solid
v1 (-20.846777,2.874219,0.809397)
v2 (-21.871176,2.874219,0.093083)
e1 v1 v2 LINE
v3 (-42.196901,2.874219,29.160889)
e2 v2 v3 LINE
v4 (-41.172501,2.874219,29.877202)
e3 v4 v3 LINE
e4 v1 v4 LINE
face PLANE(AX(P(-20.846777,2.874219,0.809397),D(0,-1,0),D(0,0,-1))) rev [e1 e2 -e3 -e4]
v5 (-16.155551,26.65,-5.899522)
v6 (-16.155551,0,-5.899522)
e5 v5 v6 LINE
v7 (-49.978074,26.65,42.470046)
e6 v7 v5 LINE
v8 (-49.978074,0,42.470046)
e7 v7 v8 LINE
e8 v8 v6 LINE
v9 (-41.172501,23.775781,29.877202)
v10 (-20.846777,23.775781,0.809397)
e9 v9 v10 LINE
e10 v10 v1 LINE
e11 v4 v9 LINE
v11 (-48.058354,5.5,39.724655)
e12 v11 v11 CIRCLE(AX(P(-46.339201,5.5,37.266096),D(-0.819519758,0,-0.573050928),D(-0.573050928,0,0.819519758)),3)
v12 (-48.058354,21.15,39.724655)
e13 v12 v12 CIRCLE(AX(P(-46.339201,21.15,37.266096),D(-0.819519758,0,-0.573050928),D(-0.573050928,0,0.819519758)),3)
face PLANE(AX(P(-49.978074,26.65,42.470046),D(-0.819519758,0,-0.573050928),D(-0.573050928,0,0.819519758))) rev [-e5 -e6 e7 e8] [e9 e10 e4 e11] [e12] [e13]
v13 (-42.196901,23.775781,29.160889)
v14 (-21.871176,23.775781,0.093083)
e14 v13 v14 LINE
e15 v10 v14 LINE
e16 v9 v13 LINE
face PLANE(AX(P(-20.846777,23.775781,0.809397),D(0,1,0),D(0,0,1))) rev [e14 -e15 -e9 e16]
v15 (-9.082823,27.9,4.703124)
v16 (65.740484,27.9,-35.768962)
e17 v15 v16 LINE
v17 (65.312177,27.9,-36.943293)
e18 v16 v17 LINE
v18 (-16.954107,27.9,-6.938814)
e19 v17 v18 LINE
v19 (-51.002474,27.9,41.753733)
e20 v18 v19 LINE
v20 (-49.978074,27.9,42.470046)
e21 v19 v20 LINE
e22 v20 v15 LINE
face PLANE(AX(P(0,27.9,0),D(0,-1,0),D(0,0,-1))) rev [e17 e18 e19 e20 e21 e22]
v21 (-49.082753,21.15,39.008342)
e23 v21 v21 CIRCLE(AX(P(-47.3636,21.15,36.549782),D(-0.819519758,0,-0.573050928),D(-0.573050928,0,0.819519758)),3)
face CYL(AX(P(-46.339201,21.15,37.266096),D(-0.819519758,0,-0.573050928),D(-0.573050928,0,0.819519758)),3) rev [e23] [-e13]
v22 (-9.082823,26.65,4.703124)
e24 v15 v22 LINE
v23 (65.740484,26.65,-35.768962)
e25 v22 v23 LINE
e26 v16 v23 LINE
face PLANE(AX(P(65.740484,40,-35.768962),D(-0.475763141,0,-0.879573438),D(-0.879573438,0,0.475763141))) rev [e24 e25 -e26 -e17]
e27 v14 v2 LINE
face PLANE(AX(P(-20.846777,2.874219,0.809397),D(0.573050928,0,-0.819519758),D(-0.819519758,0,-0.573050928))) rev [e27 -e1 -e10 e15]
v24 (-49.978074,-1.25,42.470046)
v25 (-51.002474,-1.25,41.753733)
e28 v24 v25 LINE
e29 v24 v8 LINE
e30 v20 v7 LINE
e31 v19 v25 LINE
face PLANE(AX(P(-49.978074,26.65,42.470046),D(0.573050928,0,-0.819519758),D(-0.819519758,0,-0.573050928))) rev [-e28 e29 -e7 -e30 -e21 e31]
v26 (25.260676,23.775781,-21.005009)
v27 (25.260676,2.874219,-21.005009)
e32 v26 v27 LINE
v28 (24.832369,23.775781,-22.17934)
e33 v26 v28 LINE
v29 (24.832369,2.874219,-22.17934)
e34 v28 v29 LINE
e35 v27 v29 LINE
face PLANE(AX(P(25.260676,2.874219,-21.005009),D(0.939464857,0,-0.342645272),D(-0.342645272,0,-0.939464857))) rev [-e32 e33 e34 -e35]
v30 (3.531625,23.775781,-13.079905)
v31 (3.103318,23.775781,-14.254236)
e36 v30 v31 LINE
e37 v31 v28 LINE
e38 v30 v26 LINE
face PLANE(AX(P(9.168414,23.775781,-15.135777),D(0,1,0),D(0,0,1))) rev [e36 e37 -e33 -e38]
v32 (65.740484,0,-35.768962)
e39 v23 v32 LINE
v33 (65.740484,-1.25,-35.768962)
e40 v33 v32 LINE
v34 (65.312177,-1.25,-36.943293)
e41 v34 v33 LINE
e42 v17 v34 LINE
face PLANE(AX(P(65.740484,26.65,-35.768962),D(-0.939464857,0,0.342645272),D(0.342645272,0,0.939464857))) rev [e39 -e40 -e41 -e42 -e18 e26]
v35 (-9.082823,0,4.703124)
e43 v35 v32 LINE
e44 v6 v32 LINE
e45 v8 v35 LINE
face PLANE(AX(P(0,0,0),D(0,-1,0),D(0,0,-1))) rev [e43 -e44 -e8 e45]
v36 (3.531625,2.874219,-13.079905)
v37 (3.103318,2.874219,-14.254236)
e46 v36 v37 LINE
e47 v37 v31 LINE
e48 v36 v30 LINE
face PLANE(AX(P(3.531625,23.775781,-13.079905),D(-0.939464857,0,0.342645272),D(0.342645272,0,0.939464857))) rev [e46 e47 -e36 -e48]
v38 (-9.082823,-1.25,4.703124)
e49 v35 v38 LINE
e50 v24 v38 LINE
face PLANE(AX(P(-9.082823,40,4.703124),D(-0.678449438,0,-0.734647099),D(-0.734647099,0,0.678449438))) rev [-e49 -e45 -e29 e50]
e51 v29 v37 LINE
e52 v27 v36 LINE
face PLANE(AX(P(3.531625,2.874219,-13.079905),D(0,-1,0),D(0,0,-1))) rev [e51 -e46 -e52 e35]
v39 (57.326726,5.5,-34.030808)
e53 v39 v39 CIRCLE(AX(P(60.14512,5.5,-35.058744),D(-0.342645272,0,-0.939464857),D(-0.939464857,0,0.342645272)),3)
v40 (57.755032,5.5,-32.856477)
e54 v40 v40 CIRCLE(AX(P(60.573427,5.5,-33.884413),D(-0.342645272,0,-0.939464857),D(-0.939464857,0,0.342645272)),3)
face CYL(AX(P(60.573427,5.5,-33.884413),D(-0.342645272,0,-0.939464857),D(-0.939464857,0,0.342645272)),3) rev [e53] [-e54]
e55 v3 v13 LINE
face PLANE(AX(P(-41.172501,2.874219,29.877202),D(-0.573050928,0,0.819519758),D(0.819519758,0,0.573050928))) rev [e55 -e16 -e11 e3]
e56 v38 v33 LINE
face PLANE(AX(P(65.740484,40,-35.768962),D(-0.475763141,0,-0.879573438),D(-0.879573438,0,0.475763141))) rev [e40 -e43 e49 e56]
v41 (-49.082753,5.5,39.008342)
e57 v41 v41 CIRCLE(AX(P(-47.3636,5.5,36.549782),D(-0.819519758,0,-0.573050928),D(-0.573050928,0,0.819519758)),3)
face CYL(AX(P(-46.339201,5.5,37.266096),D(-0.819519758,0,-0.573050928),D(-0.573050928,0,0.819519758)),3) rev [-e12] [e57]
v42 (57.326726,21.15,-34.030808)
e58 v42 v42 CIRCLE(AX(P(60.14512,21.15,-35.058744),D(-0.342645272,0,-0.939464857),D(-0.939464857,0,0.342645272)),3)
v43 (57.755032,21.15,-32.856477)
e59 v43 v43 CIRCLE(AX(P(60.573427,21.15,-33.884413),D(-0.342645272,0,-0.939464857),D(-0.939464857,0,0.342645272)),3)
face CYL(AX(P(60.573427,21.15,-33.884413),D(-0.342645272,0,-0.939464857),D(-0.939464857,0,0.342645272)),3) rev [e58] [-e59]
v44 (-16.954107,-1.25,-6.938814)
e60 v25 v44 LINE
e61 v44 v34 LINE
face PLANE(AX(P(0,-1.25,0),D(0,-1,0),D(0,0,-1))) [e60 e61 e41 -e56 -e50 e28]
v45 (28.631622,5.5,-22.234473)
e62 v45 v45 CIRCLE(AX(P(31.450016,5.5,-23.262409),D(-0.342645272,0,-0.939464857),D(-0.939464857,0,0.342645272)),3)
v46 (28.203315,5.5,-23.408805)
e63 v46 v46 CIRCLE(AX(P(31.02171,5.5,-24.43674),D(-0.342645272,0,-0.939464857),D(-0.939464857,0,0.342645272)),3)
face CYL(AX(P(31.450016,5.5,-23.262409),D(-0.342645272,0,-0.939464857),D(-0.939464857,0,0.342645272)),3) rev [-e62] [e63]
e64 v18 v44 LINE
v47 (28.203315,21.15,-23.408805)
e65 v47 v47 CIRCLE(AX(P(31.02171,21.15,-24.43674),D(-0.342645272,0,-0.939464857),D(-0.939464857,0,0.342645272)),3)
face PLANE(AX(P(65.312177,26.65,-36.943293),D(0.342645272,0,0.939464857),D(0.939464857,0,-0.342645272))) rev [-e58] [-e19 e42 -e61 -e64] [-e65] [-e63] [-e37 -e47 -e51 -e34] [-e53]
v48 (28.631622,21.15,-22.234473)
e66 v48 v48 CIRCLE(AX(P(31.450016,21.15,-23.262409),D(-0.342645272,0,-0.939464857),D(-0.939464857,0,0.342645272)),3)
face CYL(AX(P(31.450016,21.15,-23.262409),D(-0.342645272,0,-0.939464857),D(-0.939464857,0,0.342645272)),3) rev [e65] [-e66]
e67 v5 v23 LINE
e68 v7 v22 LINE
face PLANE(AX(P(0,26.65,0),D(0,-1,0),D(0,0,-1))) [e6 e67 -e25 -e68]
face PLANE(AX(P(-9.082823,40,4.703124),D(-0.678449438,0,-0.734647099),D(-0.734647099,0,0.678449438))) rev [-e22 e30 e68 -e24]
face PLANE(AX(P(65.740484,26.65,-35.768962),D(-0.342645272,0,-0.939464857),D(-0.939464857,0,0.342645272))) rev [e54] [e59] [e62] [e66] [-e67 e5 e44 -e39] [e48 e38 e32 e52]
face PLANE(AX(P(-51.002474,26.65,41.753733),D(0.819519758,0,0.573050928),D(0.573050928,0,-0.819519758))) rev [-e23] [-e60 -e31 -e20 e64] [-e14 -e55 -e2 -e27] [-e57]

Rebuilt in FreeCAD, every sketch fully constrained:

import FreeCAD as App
import Part
import Sketcher

V = App.Vector


def add_polygon(sketch, points):
    """Adds a closed chain of lines whose ends are joined by coincident constraints."""
    first, n = sketch.GeometryCount, len(points)
    for a, b in zip(points, points[1:] + points[:1]):
        sketch.addGeometry(Part.LineSegment(App.Vector(*a, 0), App.Vector(*b, 0)), False)
    for i in range(n):
        sketch.addConstraint(Sketcher.Constraint("Coincident", first + i, 2, first + (i + 1) % n, 1))

doc = App.newDocument("Part")
body = doc.addObject("PartDesign::Body", "Body")

sketch1 = doc.addObject("Sketcher::SketchObject", "Sketch")
body.addObject(sketch1)
sketch1.AttachmentSupport = (doc.XZ_Plane, [""])
sketch1.MapMode = "FlatFace"
add_polygon(sketch1, [(-16.155551, -5.899522), (65.740484, -35.768962), (65.312177, -36.943293), (-16.954107, -6.938814), (-51.002474, 41.753733), (-49.978074, 42.470046)])
sketch1.addConstraint([
    Sketcher.Constraint("Distance", 1, 1.25),
    Sketcher.Constraint("Distance", 4, 1.25),
    Sketcher.Constraint("DistanceX", 3, 2, 4, 2, 1.0244),
    Sketcher.Constraint("Distance", 0, 87.173069),
    Sketcher.Constraint("DistanceY", 0, 2, -1, 1, 35.768962),
    Sketcher.Constraint("DistanceX", 5, 2, -1, 1, 16.155551),
    Sketcher.Constraint("DistanceY", 5, 2, -1, 1, 5.899522),
    Sketcher.Constraint("DistanceY", 1, 2, 0, 2, 1.174331),
    Sketcher.Constraint("DistanceY", 1, 2, 2, 2, 30.004479),
    Sketcher.Constraint("DistanceX", 2, 2, 0, 2, 82.694591),
    Sketcher.Constraint("DistanceX", 3, 2, 1, 2, 116.314651),
    Sketcher.Constraint("DistanceY", 2, 2, 4, 2, 49.40886),
])
pad1 = doc.addObject("PartDesign::Pad", "Pad")
body.addObject(pad1)
pad1.Profile = sketch1
pad1.Length = 26.65
pad1.Reversed = True

sketch2 = doc.addObject("Sketcher::SketchObject", "Sketch001")
body.addObject(sketch2)
sketch2.AttachmentSupport = (doc.XZ_Plane, [""])
sketch2.MapMode = "FlatFace"
sketch2.AttachmentOffset = App.Placement(V(0, 0, -26.65), App.Rotation())
add_polygon(sketch2, [(-51.002474, 41.753733), (-49.978074, 42.470046), (-7.87747, 6.485889), (65.740484, -35.768962), (65.312177, -36.943293), (-16.954107, -6.938814)])
sketch2.addConstraint([
    Sketcher.Constraint("Perpendicular", 3, 4),
    Sketcher.Constraint("Perpendicular", 0, 5),
    Sketcher.Constraint("Equal", 0, 3),
    Sketcher.Constraint("Distance", 0, 1.25),
    Sketcher.Constraint("DistanceX", 5, 2, 0, 2, 1.0244),
    Sketcher.Constraint("DistanceX", 1, 2, -1, 1, 7.87747),
    Sketcher.Constraint("DistanceY", -1, 1, 1, 2, 6.485889),
    Sketcher.Constraint("DistanceY", 2, 2, -1, 1, 35.768962),
    Sketcher.Constraint("DistanceY", 2, 2, 0, 2, 78.239008),
    Sketcher.Constraint("DistanceX", 0, 2, 3, 2, 115.290251),
    Sketcher.Constraint("DistanceY", 4, 2, 0, 2, 49.40886),
    Sketcher.Constraint("Distance", 1, 55.383395),
])
pad2 = doc.addObject("PartDesign::Pad", "Pad001")
body.addObject(pad2)
pad2.Profile = sketch2
pad2.Length = 1.25
pad2.Reversed = True

sketch3 = doc.addObject("Sketcher::SketchObject", "Sketch002")
body.addObject(sketch3)
sketch3.AttachmentSupport = (doc.XZ_Plane, [""])
sketch3.MapMode = "FlatFace"
add_polygon(sketch3, [(65.312177, -36.943293), (65.740484, -35.768962), (-7.87747, 6.485889), (-49.978074, 42.470046), (-51.002474, 41.753733), (-16.954107, -6.938814)])
sketch3.addConstraint([
    Sketcher.Constraint("Distance", 0, 1.25),
    Sketcher.Constraint("Distance", 3, 1.25),
    Sketcher.Constraint("DistanceX", 3, 2, 2, 2, 1.0244),
    Sketcher.Constraint("DistanceY", 0, 2, -1, 1, 35.768962),
    Sketcher.Constraint("DistanceX", 1, 2, -1, 1, 7.87747),
    Sketcher.Constraint("DistanceY", -1, 1, 1, 2, 6.485889),
    Sketcher.Constraint("DistanceY", 0, 2, 2, 2, 78.239008),
    Sketcher.Constraint("DistanceY", 4, 2, 2, 2, 49.40886),
    Sketcher.Constraint("DistanceX", 4, 2, 0, 2, 82.694591),
    Sketcher.Constraint("DistanceY", 5, 2, 0, 2, 1.174331),
    Sketcher.Constraint("DistanceX", 2, 2, 5, 2, 115.290251),
    Sketcher.Constraint("Distance", 1, 84.882716),
])
pad3 = doc.addObject("PartDesign::Pad", "Pad002")
body.addObject(pad3)
pad3.Profile = sketch3
pad3.Length = 1.25

sketch4 = doc.addObject("Sketcher::SketchObject", "Sketch003")
body.addObject(sketch4)
sketch4.Placement = App.Placement(V(-4.224137, 0, -11.581738), App.Rotation(V(-0.939464857, 0, 0.342645272), V(0, 1, 0), V(-0.342645272, 0, -0.939464857), "ZXY"))
sketch4.addGeometry([
    Part.Circle(V(-68.5, 21.1, 0), V(0, 0, 1), 3),
    Part.Circle(V(-37.5, 21.1, 0), V(0, 0, 1), 3),
    Part.Circle(V(-37.5, 5.5, 0), V(0, 0, 1), 3),
    Part.Circle(V(-68.5, 5.5, 0), V(0, 0, 1), 3),
], False)
sketch4.addConstraint([
    Sketcher.Constraint("Equal", 0, 1),
    Sketcher.Constraint("Equal", 1, 2),
    Sketcher.Constraint("Equal", 2, 3),
    Sketcher.Constraint("Horizontal", 0, 3, 1, 3),
    Sketcher.Constraint("Horizontal", 2, 3, 3, 3),
    Sketcher.Constraint("Vertical", 1, 3, 2, 3),
    Sketcher.Constraint("Vertical", 0, 3, 3, 3),
    Sketcher.Constraint("Diameter", 0, 6.0),
    Sketcher.Constraint("DistanceX", 0, 3, 1, 3, 31.0),
    Sketcher.Constraint("DistanceY", -1, 1, 2, 3, 5.5),
    Sketcher.Constraint("DistanceY", -1, 1, 0, 3, 21.15),
    Sketcher.Constraint("DistanceX", 0, 3, -1, 1, 68.51694),
])
pocket1 = doc.addObject("PartDesign::Pocket", "Pocket")
body.addObject(pocket1)
pocket1.Profile = sketch4
pocket1.Length = 1.25

sketch5 = doc.addObject("Sketcher::SketchObject", "Sketch004")
body.addObject(sketch5)
sketch5.Placement = App.Placement(V(-14.645244, 0, -10.240718), App.Rotation(V(-0.573050928, 0, 0.819519758), V(0, 1, 0), V(-0.819519758, 0, -0.573050928), "ZXY"))
sketch5.addGeometry([
    Part.Circle(V(57.1, 21.1, 0), V(0, 0, 1), 3),
    Part.Circle(V(57.1, 5.5, 0), V(0, 0, 1), 3),
], False)
sketch5.addConstraint([
    Sketcher.Constraint("Equal", 0, 1),
    Sketcher.Constraint("Vertical", 0, 3, 1, 3),
    Sketcher.Constraint("Diameter", 0, 6.0),
    Sketcher.Constraint("DistanceY", -1, 1, 1, 3, 5.5),
    Sketcher.Constraint("DistanceY", -1, 1, 0, 3, 21.15),
    Sketcher.Constraint("DistanceX", -1, 1, 0, 3, 57.095024),
])
pocket2 = doc.addObject("PartDesign::Pocket", "Pocket001")
body.addObject(pocket2)
pocket2.Profile = sketch5
pocket2.Length = 1.25

sketch6 = doc.addObject("Sketcher::SketchObject", "Sketch005")
body.addObject(sketch6)
sketch6.Placement = App.Placement(V(-14.645244, 0, -10.240718), App.Rotation(V(-0.573050928, 0, 0.819519758), V(0, 1, 0), V(-0.819519758, 0, -0.573050928), "ZXY"))
add_polygon(sketch6, [(13, 24), (13, 3), (48, 3), (48, 24)])
sketch6.addConstraint([
    Sketcher.Constraint("Vertical", 0),
    Sketcher.Constraint("Horizontal", 1),
    Sketcher.Constraint("Vertical", 2),
    Sketcher.Constraint("Horizontal", 3),
    Sketcher.Constraint("DistanceY", 0, 2, 0, 1, 20.901561),
    Sketcher.Constraint("DistanceX", 1, 1, 1, 2, 35.469316),
    Sketcher.Constraint("DistanceX", -1, 1, 0, 2, 12.609582),
    Sketcher.Constraint("DistanceY", -1, 1, 0, 2, 2.874219),
])
pocket3 = doc.addObject("PartDesign::Pocket", "Pocket002")
body.addObject(pocket3)
pocket3.Profile = sketch6
pocket3.Length = 1.25

sketch7 = doc.addObject("Sketcher::SketchObject", "Sketch006")
body.addObject(sketch7)
sketch7.Placement = App.Placement(V(-4.224137, 0, -11.581738), App.Rotation(V(-0.939464857, 0, 0.342645272), V(0, 1, 0), V(-0.342645272, 0, -0.939464857), "ZXY"))
add_polygon(sketch7, [(-8, 24), (-31, 24), (-31, 3), (-8, 3)])
sketch7.addConstraint([
    Sketcher.Constraint("Horizontal", 0),
    Sketcher.Constraint("Vertical", 1),
    Sketcher.Constraint("Horizontal", 2),
    Sketcher.Constraint("Vertical", 3),
    Sketcher.Constraint("DistanceX", 0, 2, 0, 1, 23.129179),
    Sketcher.Constraint("DistanceY", 1, 2, 1, 1, 20.901561),
    Sketcher.Constraint("DistanceY", -1, 1, 0, 2, 23.775781),
    Sketcher.Constraint("DistanceX", 0, 2, -1, 1, 30.928784),
])
pocket4 = doc.addObject("PartDesign::Pocket", "Pocket003")
body.addObject(pocket4)
pocket4.Profile = sketch7
pocket4.Length = 1.25

sketch8 = doc.addObject("Sketcher::SketchObject", "Sketch007")
body.addObject(sketch8)
sketch8.AttachmentSupport = (doc.XZ_Plane, [""])
sketch8.MapMode = "FlatFace"
sketch8.AttachmentOffset = App.Placement(V(0, 0, 1.25), App.Rotation())
add_polygon(sketch8, [(-9, 5), (66, -36), (-8, 6), (-50, 42)])
sketch8.addConstraint([
    Sketcher.Constraint("Distance", 0, 85.06772),
    Sketcher.Constraint("DistanceY", 0, 2, -1, 1, 35.768962),
    Sketcher.Constraint("DistanceX", 1, 2, -1, 1, 7.87747),
    Sketcher.Constraint("DistanceY", -1, 1, 1, 2, 6.485889),
    Sketcher.Constraint("DistanceY", 0, 2, 2, 2, 78.239008),
    Sketcher.Constraint("DistanceX", 2, 2, 3, 2, 40.895251),
    Sketcher.Constraint("Distance", 1, 84.882716),
    Sketcher.Constraint("Distance", 2, 55.383395),
])
pocket5 = doc.addObject("PartDesign::Pocket", "Pocket004")
body.addObject(pocket5)
pocket5.Profile = sketch8
pocket5.Length = 41.25

doc.recompute()
